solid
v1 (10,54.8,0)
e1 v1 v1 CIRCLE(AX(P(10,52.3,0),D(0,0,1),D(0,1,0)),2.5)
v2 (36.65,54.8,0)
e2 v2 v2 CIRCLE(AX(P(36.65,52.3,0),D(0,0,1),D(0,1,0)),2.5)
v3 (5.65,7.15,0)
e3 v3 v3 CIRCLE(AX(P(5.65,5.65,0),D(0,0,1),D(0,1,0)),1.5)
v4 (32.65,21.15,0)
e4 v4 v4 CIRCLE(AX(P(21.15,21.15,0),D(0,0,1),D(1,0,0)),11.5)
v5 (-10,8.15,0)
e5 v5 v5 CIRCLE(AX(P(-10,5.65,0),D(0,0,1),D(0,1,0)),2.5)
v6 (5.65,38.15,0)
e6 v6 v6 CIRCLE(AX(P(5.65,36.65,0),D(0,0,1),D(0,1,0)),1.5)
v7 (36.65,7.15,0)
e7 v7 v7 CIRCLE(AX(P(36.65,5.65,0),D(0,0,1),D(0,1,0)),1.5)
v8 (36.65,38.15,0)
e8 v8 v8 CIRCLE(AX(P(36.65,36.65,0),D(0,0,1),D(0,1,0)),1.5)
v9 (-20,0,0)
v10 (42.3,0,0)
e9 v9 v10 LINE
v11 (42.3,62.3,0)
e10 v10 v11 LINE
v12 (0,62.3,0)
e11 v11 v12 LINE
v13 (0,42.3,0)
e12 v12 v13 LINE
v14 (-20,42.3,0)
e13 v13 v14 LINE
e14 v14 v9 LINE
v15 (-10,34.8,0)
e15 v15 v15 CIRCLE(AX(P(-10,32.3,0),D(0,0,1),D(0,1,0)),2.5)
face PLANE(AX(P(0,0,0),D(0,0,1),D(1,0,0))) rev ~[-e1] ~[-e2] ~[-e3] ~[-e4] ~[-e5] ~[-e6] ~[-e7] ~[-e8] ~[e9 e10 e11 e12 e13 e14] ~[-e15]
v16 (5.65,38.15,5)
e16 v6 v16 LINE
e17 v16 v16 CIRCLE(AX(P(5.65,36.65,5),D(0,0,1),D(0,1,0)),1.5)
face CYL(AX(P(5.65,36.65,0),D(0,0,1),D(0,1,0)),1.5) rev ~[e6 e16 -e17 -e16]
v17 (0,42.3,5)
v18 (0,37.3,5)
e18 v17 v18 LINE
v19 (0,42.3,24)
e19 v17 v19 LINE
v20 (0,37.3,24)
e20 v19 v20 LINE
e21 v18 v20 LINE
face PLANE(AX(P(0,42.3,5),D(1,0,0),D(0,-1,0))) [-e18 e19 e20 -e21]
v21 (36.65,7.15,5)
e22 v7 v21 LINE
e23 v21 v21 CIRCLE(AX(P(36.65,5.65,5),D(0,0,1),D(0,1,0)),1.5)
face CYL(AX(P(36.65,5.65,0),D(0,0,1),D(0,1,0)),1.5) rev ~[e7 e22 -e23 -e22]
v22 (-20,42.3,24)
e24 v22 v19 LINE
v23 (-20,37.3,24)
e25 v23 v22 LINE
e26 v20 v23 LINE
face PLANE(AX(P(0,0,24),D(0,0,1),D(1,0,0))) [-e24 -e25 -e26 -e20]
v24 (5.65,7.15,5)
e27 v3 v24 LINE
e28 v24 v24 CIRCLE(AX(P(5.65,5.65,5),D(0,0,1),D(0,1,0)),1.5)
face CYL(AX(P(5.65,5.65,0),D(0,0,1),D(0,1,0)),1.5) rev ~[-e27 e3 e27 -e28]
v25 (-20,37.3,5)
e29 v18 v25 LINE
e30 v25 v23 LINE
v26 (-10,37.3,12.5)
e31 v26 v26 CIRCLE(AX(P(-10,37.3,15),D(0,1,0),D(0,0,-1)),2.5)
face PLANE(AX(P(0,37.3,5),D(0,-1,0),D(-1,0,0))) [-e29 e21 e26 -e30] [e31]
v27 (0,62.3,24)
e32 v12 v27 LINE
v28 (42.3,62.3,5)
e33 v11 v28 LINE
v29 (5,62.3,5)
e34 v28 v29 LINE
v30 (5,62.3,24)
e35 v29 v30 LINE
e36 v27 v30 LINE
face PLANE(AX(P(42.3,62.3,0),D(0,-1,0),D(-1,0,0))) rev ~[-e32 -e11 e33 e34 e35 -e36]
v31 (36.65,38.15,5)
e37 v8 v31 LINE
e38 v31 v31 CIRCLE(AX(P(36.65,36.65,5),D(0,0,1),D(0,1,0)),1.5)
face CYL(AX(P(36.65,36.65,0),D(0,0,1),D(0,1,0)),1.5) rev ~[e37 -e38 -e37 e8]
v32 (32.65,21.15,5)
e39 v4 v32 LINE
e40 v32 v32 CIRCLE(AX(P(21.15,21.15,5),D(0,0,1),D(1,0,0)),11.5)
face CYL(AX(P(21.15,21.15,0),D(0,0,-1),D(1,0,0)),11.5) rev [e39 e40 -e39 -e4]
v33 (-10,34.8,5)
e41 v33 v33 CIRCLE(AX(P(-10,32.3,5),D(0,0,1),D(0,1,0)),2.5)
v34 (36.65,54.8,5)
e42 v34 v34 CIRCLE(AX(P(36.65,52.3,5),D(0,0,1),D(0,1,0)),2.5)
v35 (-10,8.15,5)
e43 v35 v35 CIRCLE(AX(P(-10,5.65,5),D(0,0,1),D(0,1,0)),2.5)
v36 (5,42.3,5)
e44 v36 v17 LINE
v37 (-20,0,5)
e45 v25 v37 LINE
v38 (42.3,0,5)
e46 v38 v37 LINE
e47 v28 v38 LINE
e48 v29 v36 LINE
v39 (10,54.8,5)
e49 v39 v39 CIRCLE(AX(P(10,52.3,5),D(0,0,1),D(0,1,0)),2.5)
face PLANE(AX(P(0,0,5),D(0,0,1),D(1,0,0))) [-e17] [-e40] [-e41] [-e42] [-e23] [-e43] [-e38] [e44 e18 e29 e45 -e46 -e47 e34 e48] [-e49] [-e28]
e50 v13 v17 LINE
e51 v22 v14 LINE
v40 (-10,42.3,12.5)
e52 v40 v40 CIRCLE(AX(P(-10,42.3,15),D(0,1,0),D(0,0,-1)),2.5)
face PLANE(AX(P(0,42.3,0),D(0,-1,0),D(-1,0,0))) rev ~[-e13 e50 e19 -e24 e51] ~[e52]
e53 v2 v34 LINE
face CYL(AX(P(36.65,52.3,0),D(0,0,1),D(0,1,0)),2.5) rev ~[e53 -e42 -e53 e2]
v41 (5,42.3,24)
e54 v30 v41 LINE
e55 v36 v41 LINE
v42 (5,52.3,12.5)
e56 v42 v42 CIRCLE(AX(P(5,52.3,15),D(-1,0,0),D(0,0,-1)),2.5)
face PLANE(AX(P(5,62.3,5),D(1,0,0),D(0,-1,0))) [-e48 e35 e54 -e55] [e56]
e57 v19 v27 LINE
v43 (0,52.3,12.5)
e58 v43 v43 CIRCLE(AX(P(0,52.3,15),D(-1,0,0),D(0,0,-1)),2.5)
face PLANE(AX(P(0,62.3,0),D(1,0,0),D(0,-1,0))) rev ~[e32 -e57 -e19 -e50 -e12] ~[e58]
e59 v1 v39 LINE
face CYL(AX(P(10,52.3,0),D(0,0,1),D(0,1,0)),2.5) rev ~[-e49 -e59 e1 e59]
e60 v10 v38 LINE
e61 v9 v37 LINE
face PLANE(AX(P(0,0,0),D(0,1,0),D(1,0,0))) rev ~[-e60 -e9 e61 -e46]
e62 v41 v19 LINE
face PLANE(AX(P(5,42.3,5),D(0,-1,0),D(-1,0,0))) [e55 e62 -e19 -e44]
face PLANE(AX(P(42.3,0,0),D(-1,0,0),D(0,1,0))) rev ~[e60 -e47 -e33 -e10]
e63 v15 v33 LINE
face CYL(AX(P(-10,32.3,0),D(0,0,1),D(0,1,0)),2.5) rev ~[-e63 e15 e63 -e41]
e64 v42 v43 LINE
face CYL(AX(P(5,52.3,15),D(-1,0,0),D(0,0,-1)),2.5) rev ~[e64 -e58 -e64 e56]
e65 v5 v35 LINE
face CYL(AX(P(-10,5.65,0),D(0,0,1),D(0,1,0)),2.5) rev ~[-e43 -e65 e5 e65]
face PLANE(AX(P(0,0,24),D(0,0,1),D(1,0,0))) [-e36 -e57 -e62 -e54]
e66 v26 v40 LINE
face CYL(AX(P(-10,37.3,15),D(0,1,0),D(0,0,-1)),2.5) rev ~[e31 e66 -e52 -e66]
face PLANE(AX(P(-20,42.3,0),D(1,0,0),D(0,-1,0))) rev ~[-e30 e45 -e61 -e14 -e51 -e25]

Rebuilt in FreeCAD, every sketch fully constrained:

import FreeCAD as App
import Part
import Sketcher

doc = App.newDocument("Part")
body = doc.addObject("PartDesign::Body", "Body")

# Sketch on XY plane
sketch1 = body.newObject("Sketcher::SketchObject", "Sketch")
sketch1.AttachmentSupport = (doc.getObject("XY_Plane"), [""])
sketch1.MapMode = "FlatFace"
sketch1.addGeometry(Part.LineSegment(App.Vector(42.3, 0, 0), App.Vector(42.3, 62.3, 0)), False)
sketch1.addGeometry(Part.LineSegment(App.Vector(42.3, 62.3, 0), App.Vector(0, 62.3, 0)), False)
sketch1.addGeometry(Part.LineSegment(App.Vector(0, 62.3, 0), App.Vector(0, 42.3, 0)), False)
sketch1.addGeometry(Part.LineSegment(App.Vector(0, 42.3, 0), App.Vector(-20, 42.3, 0)), False)
sketch1.addGeometry(Part.LineSegment(App.Vector(-20, 42.3, 0), App.Vector(-20, 0, 0)), False)
sketch1.addGeometry(Part.LineSegment(App.Vector(-20, 0, 0), App.Vector(42.3, 0, 0)), False)
sketch1.addGeometry(Part.Circle(App.Vector(21.15, 21.15, 0), App.Vector(0, 0, 1), 11.5), False)
sketch1.addConstraint(Sketcher.Constraint("Coincident", 0, 2, 1, 1))
sketch1.addConstraint(Sketcher.Constraint("Coincident", 1, 2, 2, 1))
sketch1.addConstraint(Sketcher.Constraint("Coincident", 2, 2, 3, 1))
sketch1.addConstraint(Sketcher.Constraint("Coincident", 3, 2, 4, 1))
sketch1.addConstraint(Sketcher.Constraint("Coincident", 4, 2, 5, 1))
sketch1.addConstraint(Sketcher.Constraint("Coincident", 5, 2, 0, 1))
sketch1.addConstraint(Sketcher.Constraint("Vertical", 0))
sketch1.addConstraint(Sketcher.Constraint("Horizontal", 1))
sketch1.addConstraint(Sketcher.Constraint("Vertical", 2))
sketch1.addConstraint(Sketcher.Constraint("Horizontal", 3))
sketch1.addConstraint(Sketcher.Constraint("Vertical", 4))
sketch1.addConstraint(Sketcher.Constraint("Horizontal", 5))
sketch1.addConstraint(Sketcher.Constraint("PointOnObject", 1, 2, -2))
sketch1.addConstraint(Sketcher.Constraint("PointOnObject", 4, 2, -1))
sketch1.addConstraint(Sketcher.Constraint("Equal", 5, 0))
sketch1.addConstraint(Sketcher.Constraint("Equal", 3, 2))
sketch1.addConstraint(Sketcher.Constraint("Diameter", 6, 23.0))
sketch1.addConstraint(Sketcher.Constraint("DistanceX", 3, 2, 3, 1, 20.0))
sketch1.addConstraint(Sketcher.Constraint("DistanceX", 1, 2, 1, 1, 42.3))
sketch1.addConstraint(Sketcher.Constraint("DistanceX", -1, 1, 6, 3, 21.15))
sketch1.addConstraint(Sketcher.Constraint("DistanceY", -1, 1, 6, 3, 21.15))
pad1 = body.newObject("PartDesign::Pad", "Pad")
pad1.Profile = sketch1
pad1.Length = 5

# Sketch on XY plane
sketch2 = body.newObject("Sketcher::SketchObject", "Sketch001")
sketch2.AttachmentSupport = (doc.getObject("XY_Plane"), [""])
sketch2.MapMode = "FlatFace"
sketch2.addGeometry(Part.Circle(App.Vector(5.65, 36.65, 0), App.Vector(0, 0, 1), 1.5), False)
sketch2.addGeometry(Part.Circle(App.Vector(36.65, 36.65, 0), App.Vector(0, 0, 1), 1.5), False)
sketch2.addGeometry(Part.Circle(App.Vector(36.65, 5.65, 0), App.Vector(0, 0, 1), 1.5), False)
sketch2.addGeometry(Part.Circle(App.Vector(5.65, 5.65, 0), App.Vector(0, 0, 1), 1.5), False)
sketch2.addConstraint(Sketcher.Constraint("Equal", 0, 1))
sketch2.addConstraint(Sketcher.Constraint("Equal", 1, 2))
sketch2.addConstraint(Sketcher.Constraint("Equal", 2, 3))
sketch2.addConstraint(Sketcher.Constraint("Horizontal", 0, 3, 1, 3))
sketch2.addConstraint(Sketcher.Constraint("Horizontal", 2, 3, 3, 3))
sketch2.addConstraint(Sketcher.Constraint("Vertical", 1, 3, 2, 3))
sketch2.addConstraint(Sketcher.Constraint("Vertical", 0, 3, 3, 3))
sketch2.addConstraint(Sketcher.Constraint("Diameter", 0, 3.0))
sketch2.addConstraint(Sketcher.Constraint("DistanceX", 0, 3, 1, 3, 31.0))
sketch2.addConstraint(Sketcher.Constraint("DistanceY", 2, 3, 1, 3, 31.0))
sketch2.addConstraint(Sketcher.Constraint("DistanceX", -1, 1, 0, 3, 5.65))
sketch2.addConstraint(Sketcher.Constraint("DistanceY", -1, 1, 0, 3, 36.65))
doc.recompute()
hole = body.newObject("PartDesign::Hole", "Hole")
hole.Profile = sketch2
hole.ThreadType = "None"
hole.Diameter = 3
hole.DepthType = "Dimension"
hole.Depth = 8
hole.DrillPoint = "Angled"
hole.DrillPointAngle = 118
hole.Reversed = True

# Sketch on XY plane
sketch3 = body.newObject("Sketcher::SketchObject", "Sketch002")
sketch3.AttachmentSupport = (doc.getObject("XY_Plane"), [""])
sketch3.MapMode = "FlatFace"
sketch3.addGeometry(Part.Circle(App.Vector(10, 52.3, 0), App.Vector(0, 0, 1), 2.5), False)
sketch3.addGeometry(Part.Circle(App.Vector(36.65, 52.3, 0), App.Vector(0, 0, 1), 2.5), False)
sketch3.addGeometry(Part.Circle(App.Vector(-10, 32.3, 0), App.Vector(0, 0, 1), 2.5), False)
sketch3.addGeometry(Part.Circle(App.Vector(-10, 5.65, 0), App.Vector(0, 0, 1), 2.5), False)
sketch3.addConstraint(Sketcher.Constraint("Equal", 0, 1))
sketch3.addConstraint(Sketcher.Constraint("Equal", 1, 2))
sketch3.addConstraint(Sketcher.Constraint("Equal", 2, 3))
sketch3.addConstraint(Sketcher.Constraint("Horizontal", 0, 3, 1, 3))
sketch3.addConstraint(Sketcher.Constraint("Vertical", 2, 3, 3, 3))
sketch3.addConstraint(Sketcher.Constraint("Diameter", 0, 5.0))
sketch3.addConstraint(Sketcher.Constraint("DistanceX", -1, 1, 0, 3, 10.0))
sketch3.addConstraint(Sketcher.Constraint("DistanceX", 2, 3, -1, 1, 10.0))
sketch3.addConstraint(Sketcher.Constraint("DistanceY", 2, 3, 0, 3, 20.0))
sketch3.addConstraint(Sketcher.Constraint("DistanceY", -1, 1, 0, 3, 52.3))
sketch3.addConstraint(Sketcher.Constraint("DistanceX", -1, 1, 1, 3, 36.65))
sketch3.addConstraint(Sketcher.Constraint("DistanceY", -1, 1, 3, 3, 5.65))
doc.recompute()
hole2 = body.newObject("PartDesign::Hole", "Hole001")
hole2.Profile = sketch3
hole2.ThreadType = "None"
hole2.Diameter = 5
hole2.DepthType = "Dimension"
hole2.Depth = 8
hole2.DrillPoint = "Angled"
hole2.DrillPointAngle = 118
hole2.Reversed = True

# Sketch on XY plane
sketch4 = body.newObject("Sketcher::SketchObject", "Sketch003")
sketch4.AttachmentSupport = (doc.getObject("XY_Plane"), [""])
sketch4.MapMode = "FlatFace"
sketch4.AttachmentOffset = App.Placement(App.Vector(0, 0, 5), App.Rotation())
sketch4.addGeometry(Part.LineSegment(App.Vector(0, 62.3, 0), App.Vector(0, 42.3, 0)), False)
sketch4.addGeometry(Part.LineSegment(App.Vector(0, 42.3, 0), App.Vector(5, 42.3, 0)), False)
sketch4.addGeometry(Part.LineSegment(App.Vector(5, 42.3, 0), App.Vector(5, 62.3, 0)), False)
sketch4.addGeometry(Part.LineSegment(App.Vector(5, 62.3, 0), App.Vector(0, 62.3, 0)), False)
sketch4.addGeometry(Part.LineSegment(App.Vector(0, 42.3, 0), App.Vector(-20, 42.3, 0)), False)
sketch4.addGeometry(Part.LineSegment(App.Vector(-20, 42.3, 0), App.Vector(-20, 37.3, 0)), False)
sketch4.addGeometry(Part.LineSegment(App.Vector(-20, 37.3, 0), App.Vector(0, 37.3, 0)), False)
sketch4.addGeometry(Part.LineSegment(App.Vector(0, 37.3, 0), App.Vector(0, 42.3, 0)), False)
sketch4.addConstraint(Sketcher.Constraint("Coincident", 0, 2, 1, 1))
sketch4.addConstraint(Sketcher.Constraint("Coincident", 1, 2, 2, 1))
sketch4.addConstraint(Sketcher.Constraint("Coincident", 2, 2, 3, 1))
sketch4.addConstraint(Sketcher.Constraint("Coincident", 3, 2, 0, 1))
sketch4.addConstraint(Sketcher.Constraint("Coincident", 4, 2, 5, 1))
sketch4.addConstraint(Sketcher.Constraint("Coincident", 5, 2, 6, 1))
sketch4.addConstraint(Sketcher.Constraint("Coincident", 6, 2, 7, 1))
sketch4.addConstraint(Sketcher.Constraint("Coincident", 7, 2, 4, 1))
sketch4.addConstraint(Sketcher.Constraint("Vertical", 0))
sketch4.addConstraint(Sketcher.Constraint("Horizontal", 1))
sketch4.addConstraint(Sketcher.Constraint("Vertical", 2))
sketch4.addConstraint(Sketcher.Constraint("Horizontal", 3))
sketch4.addConstraint(Sketcher.Constraint("Horizontal", 4))
sketch4.addConstraint(Sketcher.Constraint("Vertical", 5))
sketch4.addConstraint(Sketcher.Constraint("Horizontal", 6))
sketch4.addConstraint(Sketcher.Constraint("Vertical", 7))
sketch4.addConstraint(Sketcher.Constraint("Coincident", 7, 2, 0, 2))
sketch4.addConstraint(Sketcher.Constraint("PointOnObject", 0, 2, -2))
sketch4.addConstraint(Sketcher.Constraint("Equal", 6, 0))
sketch4.addConstraint(Sketcher.Constraint("Equal", 3, 5))
sketch4.addConstraint(Sketcher.Constraint("DistanceX", 1, 1, 1, 2, 5.0))
sketch4.addConstraint(Sketcher.Constraint("DistanceX", 4, 2, 4, 1, 20.0))
sketch4.addConstraint(Sketcher.Constraint("DistanceY", -1, 1, 0, 2, 42.3))
pad2 = body.newObject("PartDesign::Pad", "Pad001")
pad2.Profile = sketch4
pad2.Length = 19

# Sketch on XZ plane
sketch5 = body.newObject("Sketcher::SketchObject", "Sketch004")
sketch5.AttachmentSupport = (doc.getObject("XZ_Plane"), [""])
sketch5.MapMode = "FlatFace"
sketch5.AttachmentOffset = App.Placement(App.Vector(0, 0, -37.3), App.Rotation())
sketch5.addGeometry(Part.Circle(App.Vector(-10, 15, 0), App.Vector(0, 0, 1), 2.5), False)
sketch5.addConstraint(Sketcher.Constraint("Diameter", 0, 5.0))
sketch5.addConstraint(Sketcher.Constraint("DistanceX", 0, 3, -1, 1, 10.0))
sketch5.addConstraint(Sketcher.Constraint("DistanceY", -1, 1, 0, 3, 15.0))
doc.recompute()
hole3 = body.newObject("PartDesign::Hole", "Hole002")
hole3.Profile = sketch5
hole3.ThreadType = "None"
hole3.Diameter = 5
hole3.DepthType = "Dimension"
hole3.Depth = 8
hole3.DrillPoint = "Angled"
hole3.DrillPointAngle = 118

# Sketch on YZ plane
sketch6 = body.newObject("Sketcher::SketchObject", "Sketch005")
sketch6.AttachmentSupport = (doc.getObject("YZ_Plane"), [""])
sketch6.MapMode = "FlatFace"
sketch6.AttachmentOffset = App.Placement(App.Vector(0, 0, 5), App.Rotation())
sketch6.addGeometry(Part.Circle(App.Vector(52.3, 15, 0), App.Vector(0, 0, 1), 2.5), False)
sketch6.addConstraint(Sketcher.Constraint("Diameter", 0, 5.0))
sketch6.addConstraint(Sketcher.Constraint("DistanceY", -1, 1, 0, 3, 15.0))
sketch6.addConstraint(Sketcher.Constraint("DistanceX", -1, 1, 0, 3, 52.3))
doc.recompute()
hole4 = body.newObject("PartDesign::Hole", "Hole003")
hole4.Profile = sketch6
hole4.ThreadType = "None"
hole4.Diameter = 5
hole4.DepthType = "Dimension"
hole4.Depth = 8
hole4.DrillPoint = "Angled"
hole4.DrillPointAngle = 118

doc.recompute()
